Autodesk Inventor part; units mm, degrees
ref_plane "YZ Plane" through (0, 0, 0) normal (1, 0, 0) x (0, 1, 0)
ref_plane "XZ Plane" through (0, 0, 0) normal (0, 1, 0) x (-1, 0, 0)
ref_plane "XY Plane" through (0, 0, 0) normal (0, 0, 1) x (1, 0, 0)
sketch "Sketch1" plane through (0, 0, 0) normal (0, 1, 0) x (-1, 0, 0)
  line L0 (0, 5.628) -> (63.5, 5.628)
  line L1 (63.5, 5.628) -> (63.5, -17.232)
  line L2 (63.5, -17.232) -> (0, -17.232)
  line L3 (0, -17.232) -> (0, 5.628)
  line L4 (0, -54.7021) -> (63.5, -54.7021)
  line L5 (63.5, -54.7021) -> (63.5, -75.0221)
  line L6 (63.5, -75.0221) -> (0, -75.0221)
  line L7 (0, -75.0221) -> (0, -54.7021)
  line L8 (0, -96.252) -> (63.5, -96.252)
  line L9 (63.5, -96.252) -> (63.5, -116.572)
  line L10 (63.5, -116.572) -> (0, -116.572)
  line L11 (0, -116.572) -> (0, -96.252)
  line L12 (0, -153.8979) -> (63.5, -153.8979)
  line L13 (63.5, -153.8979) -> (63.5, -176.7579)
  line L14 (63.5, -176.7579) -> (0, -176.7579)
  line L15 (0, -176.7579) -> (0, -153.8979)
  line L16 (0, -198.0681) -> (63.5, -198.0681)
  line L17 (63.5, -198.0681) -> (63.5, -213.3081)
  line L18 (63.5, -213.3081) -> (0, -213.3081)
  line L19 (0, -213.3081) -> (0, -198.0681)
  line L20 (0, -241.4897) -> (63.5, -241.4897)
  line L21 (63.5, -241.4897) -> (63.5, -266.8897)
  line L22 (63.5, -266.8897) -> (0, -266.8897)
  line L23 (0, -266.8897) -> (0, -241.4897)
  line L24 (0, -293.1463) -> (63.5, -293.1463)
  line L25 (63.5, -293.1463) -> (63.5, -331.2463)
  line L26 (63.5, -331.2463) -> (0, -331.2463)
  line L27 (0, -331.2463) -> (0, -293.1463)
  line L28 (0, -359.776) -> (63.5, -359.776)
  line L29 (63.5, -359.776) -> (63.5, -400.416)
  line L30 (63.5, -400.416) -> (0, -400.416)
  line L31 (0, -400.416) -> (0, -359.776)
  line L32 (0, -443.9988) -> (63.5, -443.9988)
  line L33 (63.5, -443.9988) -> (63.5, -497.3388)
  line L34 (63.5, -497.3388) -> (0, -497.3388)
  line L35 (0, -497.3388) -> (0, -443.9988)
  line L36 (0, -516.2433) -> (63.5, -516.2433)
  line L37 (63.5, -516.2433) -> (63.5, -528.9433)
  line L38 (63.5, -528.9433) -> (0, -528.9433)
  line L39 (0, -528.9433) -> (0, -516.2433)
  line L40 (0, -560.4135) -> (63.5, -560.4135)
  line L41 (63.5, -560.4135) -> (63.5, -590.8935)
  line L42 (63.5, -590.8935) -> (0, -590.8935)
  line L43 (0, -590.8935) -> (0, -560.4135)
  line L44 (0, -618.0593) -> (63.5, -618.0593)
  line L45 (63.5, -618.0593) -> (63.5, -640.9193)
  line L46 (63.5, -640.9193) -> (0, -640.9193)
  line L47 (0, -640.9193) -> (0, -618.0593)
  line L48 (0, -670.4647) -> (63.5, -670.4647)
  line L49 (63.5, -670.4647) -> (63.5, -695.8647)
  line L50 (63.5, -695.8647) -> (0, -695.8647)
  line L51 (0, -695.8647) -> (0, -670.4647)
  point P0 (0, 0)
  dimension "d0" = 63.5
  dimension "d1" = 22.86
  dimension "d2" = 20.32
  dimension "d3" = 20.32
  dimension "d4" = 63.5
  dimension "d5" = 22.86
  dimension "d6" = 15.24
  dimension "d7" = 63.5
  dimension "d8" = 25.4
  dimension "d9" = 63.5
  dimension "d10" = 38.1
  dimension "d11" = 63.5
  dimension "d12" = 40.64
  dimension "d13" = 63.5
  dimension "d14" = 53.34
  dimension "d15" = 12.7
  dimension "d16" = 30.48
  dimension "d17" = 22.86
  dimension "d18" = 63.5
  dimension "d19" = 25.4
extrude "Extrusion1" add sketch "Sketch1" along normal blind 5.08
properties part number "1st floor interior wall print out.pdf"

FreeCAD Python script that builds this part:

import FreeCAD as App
import Part
import Sketcher
from FreeCAD import Vector
Q = App.Units.Quantity


def add_polygon(sketch, points):
    """Adds a closed chain of lines whose ends are joined by coincident constraints."""
    first, n = sketch.GeometryCount, len(points)
    for a, b in zip(points, points[1:] + points[:1]):
        sketch.addGeometry(Part.LineSegment(App.Vector(*a, 0), App.Vector(*b, 0)), False)
    for i in range(n):
        sketch.addConstraint(Sketcher.Constraint("Coincident", first + i, 2, first + (i + 1) % n, 1))

doc = App.newDocument("Part")
body = doc.addObject("PartDesign::Body", "Body")
body.AllowCompound = True

# Sketch on XZ plane
sketch1 = body.newObject("Sketcher::SketchObject", "Sketch")
sketch1.AttachmentSupport = (doc.getObject("XZ_Plane"), [""])
sketch1.MapMode = "FlatFace"
add_polygon(sketch1, [(-63.5, 5.628), (0, 5.628), (0, -17.232), (-63.5, -17.232)])  # lines 0-3
add_polygon(sketch1, [(-63.5, -54.7021), (0, -54.7021), (0, -75.0221), (-63.5, -75.0221)])  # lines 4-7
add_polygon(sketch1, [(-63.5, -96.252), (0, -96.252), (0, -116.572), (-63.5, -116.572)])  # lines 8-11
add_polygon(sketch1, [(-63.5, -153.8979), (0, -153.8979), (0, -176.7579), (-63.5, -176.7579)])  # lines 12-15
add_polygon(sketch1, [(-63.5, -198.0681), (0, -198.0681), (0, -213.3081), (-63.5, -213.3081)])  # lines 16-19
add_polygon(sketch1, [(-63.5, -241.4897), (0, -241.4897), (0, -266.8897), (-63.5, -266.8897)])  # lines 20-23
add_polygon(sketch1, [(-63.5, -293.1463), (0, -293.1463), (0, -331.2463), (-63.5, -331.2463)])  # lines 24-27
add_polygon(sketch1, [(-63.5, -359.776), (0, -359.776), (0, -400.416), (-63.5, -400.416)])  # lines 28-31
add_polygon(sketch1, [(-63.5, -443.9988), (0, -443.9988), (0, -497.3388), (-63.5, -497.3388)])  # lines 32-35
add_polygon(sketch1, [(-63.5, -516.2433), (0, -516.2433), (0, -528.9433), (-63.5, -528.9433)])  # lines 36-39
add_polygon(sketch1, [(-63.5, -560.4135), (0, -560.4135), (0, -590.8935), (-63.5, -590.8935)])  # lines 40-43
add_polygon(sketch1, [(-63.5, -618.0593), (0, -618.0593), (0, -640.9193), (-63.5, -640.9193)])  # lines 44-47
add_polygon(sketch1, [(-63.5, -670.4647), (0, -670.4647), (0, -695.8647), (-63.5, -695.8647)])  # lines 48-51
sketch1.addConstraint([
    Sketcher.Constraint("Horizontal", 0),
    Sketcher.Constraint("Vertical", 1),
    Sketcher.Constraint("Horizontal", 2),
    Sketcher.Constraint("Vertical", 3),
    Sketcher.Constraint("Horizontal", 4),
    Sketcher.Constraint("Vertical", 5),
    Sketcher.Constraint("Horizontal", 6),
    Sketcher.Constraint("Vertical", 7),
    Sketcher.Constraint("Horizontal", 8),
    Sketcher.Constraint("Vertical", 9),
    Sketcher.Constraint("Horizontal", 10),
    Sketcher.Constraint("Vertical", 11),
    Sketcher.Constraint("Horizontal", 12),
    Sketcher.Constraint("Vertical", 13),
    Sketcher.Constraint("Horizontal", 14),
    Sketcher.Constraint("Vertical", 15),
    Sketcher.Constraint("Horizontal", 16),
    Sketcher.Constraint("Vertical", 17),
    Sketcher.Constraint("Horizontal", 18),
    Sketcher.Constraint("Vertical", 19),
    Sketcher.Constraint("Horizontal", 20),
    Sketcher.Constraint("Vertical", 21),
    Sketcher.Constraint("Horizontal", 22),
    Sketcher.Constraint("Vertical", 23),
    Sketcher.Constraint("Horizontal", 24),
    Sketcher.Constraint("Vertical", 25),
    Sketcher.Constraint("Horizontal", 26),
    Sketcher.Constraint("Vertical", 27),
    Sketcher.Constraint("Horizontal", 28),
    Sketcher.Constraint("Vertical", 29),
    Sketcher.Constraint("Horizontal", 30),
    Sketcher.Constraint("Vertical", 31),
    Sketcher.Constraint("Horizontal", 32),
    Sketcher.Constraint("Vertical", 33),
    Sketcher.Constraint("Horizontal", 34),
    Sketcher.Constraint("Vertical", 35),
    Sketcher.Constraint("Horizontal", 36),
    Sketcher.Constraint("Vertical", 37),
    Sketcher.Constraint("Horizontal", 38),
    Sketcher.Constraint("Vertical", 39),
    Sketcher.Constraint("Horizontal", 40),
    Sketcher.Constraint("Vertical", 41),
    Sketcher.Constraint("Horizontal", 42),
    Sketcher.Constraint("Vertical", 43),
    Sketcher.Constraint("Horizontal", 44),
    Sketcher.Constraint("Vertical", 45),
    Sketcher.Constraint("Horizontal", 46),
    Sketcher.Constraint("Vertical", 47),
    Sketcher.Constraint("Horizontal", 48),
    Sketcher.Constraint("Vertical", 49),
    Sketcher.Constraint("Horizontal", 50),
    Sketcher.Constraint("Vertical", 51),
    Sketcher.Constraint("PointOnObject", 0, 2, -2),
    Sketcher.Constraint("PointOnObject", 4, 2, -2),
    Sketcher.Constraint("PointOnObject", 8, 2, -2),
    Sketcher.Constraint("PointOnObject", 12, 2, -2),
    Sketcher.Constraint("PointOnObject", 16, 2, -2),
    Sketcher.Constraint("PointOnObject", 20, 2, -2),
    Sketcher.Constraint("PointOnObject", 24, 2, -2),
    Sketcher.Constraint("PointOnObject", 28, 2, -2),
    Sketcher.Constraint("PointOnObject", 32, 2, -2),
    Sketcher.Constraint("PointOnObject", 36, 2, -2),
    Sketcher.Constraint("PointOnObject", 40, 2, -2),
    Sketcher.Constraint("PointOnObject", 44, 2, -2),
    Sketcher.Constraint("PointOnObject", 48, 2, -2),
    Sketcher.Constraint("Vertical", 3, 2, 6, 2),
    Sketcher.Constraint("Vertical", 7, 2, 10, 2),
    Sketcher.Constraint("Vertical", 11, 2, 14, 2),
    Sketcher.Constraint("Vertical", 15, 2, 18, 2),
    Sketcher.Constraint("Vertical", 19, 2, 22, 2),
    Sketcher.Constraint("Vertical", 23, 2, 26, 2),
    Sketcher.Constraint("Vertical", 27, 2, 30, 2),
    Sketcher.Constraint("Vertical", 31, 2, 34, 2),
    Sketcher.Constraint("Vertical", 35, 2, 38, 2),
    Sketcher.Constraint("Vertical", 39, 2, 42, 2),
    Sketcher.Constraint("Vertical", 43, 2, 46, 2),
    Sketcher.Constraint("Vertical", 47, 2, 50, 2),
    Sketcher.Constraint("Equal", 7, 9),
    Sketcher.Constraint("Equal", 3, 13),
    Sketcher.Constraint("Equal", 15, 45),
    Sketcher.Constraint("Equal", 23, 49),
    Sketcher.Constraint("DistanceY", 21, 2, 21, 1, Q("1 in")),
    Sketcher.Constraint("DistanceX", 0, 1, 0, 2, Q("2.5 in")),
    Sketcher.Constraint("DistanceY", 1, 2, 1, 1, Q("0.9 in")),
    Sketcher.Constraint("DistanceY", 5, 2, 5, 1, Q("0.8 in")),
    Sketcher.Constraint("DistanceY", 17, 2, 17, 1, Q("0.6 in")),
    Sketcher.Constraint("DistanceY", 25, 2, 25, 1, Q("1.5 in")),
    Sketcher.Constraint("DistanceY", 29, 2, 29, 1, Q("1.6 in")),
    Sketcher.Constraint("DistanceY", 33, 2, 33, 1, Q("2.1 in")),
    Sketcher.Constraint("DistanceY", 37, 2, 37, 1, Q("0.5 in")),
    Sketcher.Constraint("DistanceY", 41, 2, 41, 1, Q("1.2 in")),
    Sketcher.Constraint("DistanceY", 24, 2, -1, 1, Q("11.5412 in")),
    Sketcher.Constraint("DistanceY", 28, 2, -1, 1, Q("14.1644 in")),
    Sketcher.Constraint("DistanceY", 4, 2, 1, 2, Q("1.4752 in")),
    Sketcher.Constraint("DistanceY", 16, 2, 9, 2, Q("3.2085 in")),
    Sketcher.Constraint("DistanceY", 20, 2, 17, 2, Q("1.1095 in")),
    Sketcher.Constraint("DistanceY", 20, 2, 13, 2, Q("2.5485 in")),
    Sketcher.Constraint("DistanceY", 44, 2, 37, 2, Q("3.5085 in")),
    Sketcher.Constraint("DistanceY", 48, 2, 45, 2, Q("1.1632 in")),
    Sketcher.Constraint("DistanceY", -1, 1, 0, 2, Q("5.628 mm")),
    Sketcher.Constraint("DistanceY", 8, 2, -1, 1, Q("96.252 mm")),
    Sketcher.Constraint("DistanceY", 32, 2, -1, 1, Q("443.9988 mm")),
    Sketcher.Constraint("DistanceY", 36, 2, -1, 1, Q("516.2433 mm")),
    Sketcher.Constraint("DistanceY", 40, 2, -1, 1, Q("560.4135 mm")),
])
pad1 = body.newObject("PartDesign::Pad", "Pad")
pad1.Profile = sketch1
pad1.Length = Q("0.2 in")
pad1.Reversed = True

doc.recompute()
